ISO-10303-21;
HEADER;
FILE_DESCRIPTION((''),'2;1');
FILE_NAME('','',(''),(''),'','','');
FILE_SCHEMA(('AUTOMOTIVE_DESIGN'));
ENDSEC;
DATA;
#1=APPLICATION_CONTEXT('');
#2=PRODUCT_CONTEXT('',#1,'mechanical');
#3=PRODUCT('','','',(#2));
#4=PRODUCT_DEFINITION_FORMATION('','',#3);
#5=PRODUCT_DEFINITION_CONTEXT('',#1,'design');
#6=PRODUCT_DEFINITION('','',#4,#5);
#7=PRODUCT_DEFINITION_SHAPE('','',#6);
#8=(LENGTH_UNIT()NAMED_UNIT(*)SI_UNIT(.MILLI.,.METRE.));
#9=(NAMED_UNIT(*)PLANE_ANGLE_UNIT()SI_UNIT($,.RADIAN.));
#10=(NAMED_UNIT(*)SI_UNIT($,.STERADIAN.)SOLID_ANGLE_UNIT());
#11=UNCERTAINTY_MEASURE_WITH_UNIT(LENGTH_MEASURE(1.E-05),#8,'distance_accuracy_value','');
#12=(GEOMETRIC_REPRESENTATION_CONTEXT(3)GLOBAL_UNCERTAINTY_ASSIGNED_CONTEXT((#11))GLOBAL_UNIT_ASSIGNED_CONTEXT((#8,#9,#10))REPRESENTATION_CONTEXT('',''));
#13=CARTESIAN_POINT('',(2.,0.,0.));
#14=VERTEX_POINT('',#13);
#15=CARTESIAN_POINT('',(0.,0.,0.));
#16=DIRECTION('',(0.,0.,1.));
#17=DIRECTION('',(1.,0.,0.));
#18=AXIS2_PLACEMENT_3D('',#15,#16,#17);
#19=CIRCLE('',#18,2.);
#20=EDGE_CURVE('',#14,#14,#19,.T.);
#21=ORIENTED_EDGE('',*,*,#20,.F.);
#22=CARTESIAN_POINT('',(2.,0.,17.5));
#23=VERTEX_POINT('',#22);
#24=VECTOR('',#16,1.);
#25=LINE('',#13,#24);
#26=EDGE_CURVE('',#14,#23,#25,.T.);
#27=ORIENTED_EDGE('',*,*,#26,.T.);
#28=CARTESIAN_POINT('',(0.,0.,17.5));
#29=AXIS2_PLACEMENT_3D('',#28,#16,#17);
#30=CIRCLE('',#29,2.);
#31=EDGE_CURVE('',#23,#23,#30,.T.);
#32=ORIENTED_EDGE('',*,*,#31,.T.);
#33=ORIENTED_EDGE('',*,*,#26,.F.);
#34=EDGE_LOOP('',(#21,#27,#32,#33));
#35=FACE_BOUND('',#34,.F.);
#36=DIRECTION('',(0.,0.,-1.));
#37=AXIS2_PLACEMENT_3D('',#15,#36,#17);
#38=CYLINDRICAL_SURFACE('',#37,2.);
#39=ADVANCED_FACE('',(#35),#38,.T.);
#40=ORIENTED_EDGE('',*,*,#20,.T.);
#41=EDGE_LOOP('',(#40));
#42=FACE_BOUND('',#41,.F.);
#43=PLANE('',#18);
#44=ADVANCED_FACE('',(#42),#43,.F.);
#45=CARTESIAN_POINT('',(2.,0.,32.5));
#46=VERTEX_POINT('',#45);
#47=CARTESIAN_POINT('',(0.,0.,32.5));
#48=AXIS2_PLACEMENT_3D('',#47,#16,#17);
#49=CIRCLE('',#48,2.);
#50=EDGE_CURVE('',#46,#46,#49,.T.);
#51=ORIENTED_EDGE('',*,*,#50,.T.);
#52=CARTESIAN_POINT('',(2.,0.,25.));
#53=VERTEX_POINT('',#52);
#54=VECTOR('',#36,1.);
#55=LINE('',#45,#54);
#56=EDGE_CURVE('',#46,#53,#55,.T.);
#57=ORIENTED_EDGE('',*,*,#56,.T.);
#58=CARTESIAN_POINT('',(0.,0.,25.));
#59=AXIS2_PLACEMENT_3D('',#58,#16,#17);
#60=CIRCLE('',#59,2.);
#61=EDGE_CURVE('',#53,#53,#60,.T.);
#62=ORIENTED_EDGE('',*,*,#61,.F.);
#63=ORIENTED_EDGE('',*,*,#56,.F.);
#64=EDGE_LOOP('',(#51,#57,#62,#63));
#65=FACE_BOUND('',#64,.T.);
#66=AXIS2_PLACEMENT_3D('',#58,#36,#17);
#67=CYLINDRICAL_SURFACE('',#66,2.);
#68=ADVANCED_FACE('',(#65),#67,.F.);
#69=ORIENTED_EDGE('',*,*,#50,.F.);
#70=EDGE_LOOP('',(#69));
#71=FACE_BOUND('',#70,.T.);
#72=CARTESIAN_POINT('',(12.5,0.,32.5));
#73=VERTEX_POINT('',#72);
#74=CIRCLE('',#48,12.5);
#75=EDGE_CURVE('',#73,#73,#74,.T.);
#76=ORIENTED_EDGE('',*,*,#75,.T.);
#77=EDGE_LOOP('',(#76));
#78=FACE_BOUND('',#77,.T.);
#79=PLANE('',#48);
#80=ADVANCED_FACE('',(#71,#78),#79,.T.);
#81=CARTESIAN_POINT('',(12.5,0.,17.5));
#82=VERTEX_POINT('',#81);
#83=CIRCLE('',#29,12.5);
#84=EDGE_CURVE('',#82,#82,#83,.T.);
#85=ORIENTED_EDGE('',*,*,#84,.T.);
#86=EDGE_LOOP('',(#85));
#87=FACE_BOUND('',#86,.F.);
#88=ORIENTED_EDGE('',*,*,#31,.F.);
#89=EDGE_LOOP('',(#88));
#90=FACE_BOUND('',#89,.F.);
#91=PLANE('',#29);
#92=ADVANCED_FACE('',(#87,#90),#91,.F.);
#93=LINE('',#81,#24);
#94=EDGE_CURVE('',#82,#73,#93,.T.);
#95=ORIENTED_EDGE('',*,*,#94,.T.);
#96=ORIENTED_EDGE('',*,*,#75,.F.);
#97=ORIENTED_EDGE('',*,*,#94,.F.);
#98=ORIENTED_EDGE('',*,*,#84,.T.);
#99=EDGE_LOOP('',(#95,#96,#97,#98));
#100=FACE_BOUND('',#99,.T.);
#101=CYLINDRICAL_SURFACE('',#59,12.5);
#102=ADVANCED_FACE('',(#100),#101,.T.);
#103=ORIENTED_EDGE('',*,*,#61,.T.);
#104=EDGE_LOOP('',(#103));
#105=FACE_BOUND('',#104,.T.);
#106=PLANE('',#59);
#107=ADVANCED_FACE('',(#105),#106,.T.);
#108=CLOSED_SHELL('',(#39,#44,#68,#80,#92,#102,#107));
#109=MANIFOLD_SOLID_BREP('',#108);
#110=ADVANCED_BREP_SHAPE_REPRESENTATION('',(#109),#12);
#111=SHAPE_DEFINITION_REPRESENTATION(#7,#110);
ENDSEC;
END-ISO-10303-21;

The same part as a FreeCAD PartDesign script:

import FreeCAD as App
import Part
import Sketcher
from FreeCAD import Vector

doc = App.newDocument("Part")
params = doc.addObject("Spreadsheet::Sheet", "Params")
for row, (alias, value) in enumerate([
    ("sketch1_diameter", "4 mm"),
    ("pad1_length", "25 mm"),
    ("sketch2_diameter", "25 mm"),
    ("sketch2_diameter2", "4 mm"),
    ("pad2_length", "15 mm"),
], start=1):
    params.set(f"A{row}", alias)
    params.set(f"B{row}", "=" + value)
    params.setAlias(f"B{row}", alias)

body = doc.addObject("PartDesign::Body", "Body")

sketch1 = body.newObject("Sketcher::SketchObject", "Sketch")
sketch1.AttachmentSupport = (doc.getObject("XY_Plane"), [""])
sketch1.MapMode = "FlatFace"
sketch1.addGeometry(Part.Circle(Vector(0, 0, 0), Vector(0, 0, 1), 2), False)
sketch1.addConstraint(Sketcher.Constraint("Coincident", 0, 3, -1, 1))
sketch1.addConstraint(Sketcher.Constraint("Diameter", 0, 4.0))
sketch1.setExpression("Constraints[1]", "Params.sketch1_diameter")
pad1 = body.newObject("PartDesign::Pad", "Pad")
pad1.Profile = sketch1
pad1.setExpression("Length", "Params.pad1_length")

sketch2 = body.newObject("Sketcher::SketchObject", "Sketch001")
sketch2.AttachmentSupport = (doc.getObject("XY_Plane"), [""])
sketch2.MapMode = "FlatFace"
sketch2.AttachmentOffset = App.Placement(Vector(0, 0, 25), App.Rotation())
sketch2.addGeometry(Part.Circle(Vector(0, 0, 0), Vector(0, 0, 1), 12.5), False)
sketch2.addGeometry(Part.Circle(Vector(0, 0, 0), Vector(0, 0, 1), 2), False)
sketch2.addConstraint(Sketcher.Constraint("Coincident", 0, 3, -1, 1))
sketch2.addConstraint(Sketcher.Constraint("Coincident", 1, 3, -1, 1))
sketch2.addConstraint(Sketcher.Constraint("Diameter", 0, 25.0))
sketch2.addConstraint(Sketcher.Constraint("Diameter", 1, 4.0))
sketch2.setExpression("Constraints[2]", "Params.sketch2_diameter")
sketch2.setExpression("Constraints[3]", "Params.sketch2_diameter2")
pad2 = body.newObject("PartDesign::Pad", "Pad001")
pad2.Profile = sketch2
pad2.setExpression("Length", "Params.pad2_length")
pad2.Midplane = True

doc.recompute()
